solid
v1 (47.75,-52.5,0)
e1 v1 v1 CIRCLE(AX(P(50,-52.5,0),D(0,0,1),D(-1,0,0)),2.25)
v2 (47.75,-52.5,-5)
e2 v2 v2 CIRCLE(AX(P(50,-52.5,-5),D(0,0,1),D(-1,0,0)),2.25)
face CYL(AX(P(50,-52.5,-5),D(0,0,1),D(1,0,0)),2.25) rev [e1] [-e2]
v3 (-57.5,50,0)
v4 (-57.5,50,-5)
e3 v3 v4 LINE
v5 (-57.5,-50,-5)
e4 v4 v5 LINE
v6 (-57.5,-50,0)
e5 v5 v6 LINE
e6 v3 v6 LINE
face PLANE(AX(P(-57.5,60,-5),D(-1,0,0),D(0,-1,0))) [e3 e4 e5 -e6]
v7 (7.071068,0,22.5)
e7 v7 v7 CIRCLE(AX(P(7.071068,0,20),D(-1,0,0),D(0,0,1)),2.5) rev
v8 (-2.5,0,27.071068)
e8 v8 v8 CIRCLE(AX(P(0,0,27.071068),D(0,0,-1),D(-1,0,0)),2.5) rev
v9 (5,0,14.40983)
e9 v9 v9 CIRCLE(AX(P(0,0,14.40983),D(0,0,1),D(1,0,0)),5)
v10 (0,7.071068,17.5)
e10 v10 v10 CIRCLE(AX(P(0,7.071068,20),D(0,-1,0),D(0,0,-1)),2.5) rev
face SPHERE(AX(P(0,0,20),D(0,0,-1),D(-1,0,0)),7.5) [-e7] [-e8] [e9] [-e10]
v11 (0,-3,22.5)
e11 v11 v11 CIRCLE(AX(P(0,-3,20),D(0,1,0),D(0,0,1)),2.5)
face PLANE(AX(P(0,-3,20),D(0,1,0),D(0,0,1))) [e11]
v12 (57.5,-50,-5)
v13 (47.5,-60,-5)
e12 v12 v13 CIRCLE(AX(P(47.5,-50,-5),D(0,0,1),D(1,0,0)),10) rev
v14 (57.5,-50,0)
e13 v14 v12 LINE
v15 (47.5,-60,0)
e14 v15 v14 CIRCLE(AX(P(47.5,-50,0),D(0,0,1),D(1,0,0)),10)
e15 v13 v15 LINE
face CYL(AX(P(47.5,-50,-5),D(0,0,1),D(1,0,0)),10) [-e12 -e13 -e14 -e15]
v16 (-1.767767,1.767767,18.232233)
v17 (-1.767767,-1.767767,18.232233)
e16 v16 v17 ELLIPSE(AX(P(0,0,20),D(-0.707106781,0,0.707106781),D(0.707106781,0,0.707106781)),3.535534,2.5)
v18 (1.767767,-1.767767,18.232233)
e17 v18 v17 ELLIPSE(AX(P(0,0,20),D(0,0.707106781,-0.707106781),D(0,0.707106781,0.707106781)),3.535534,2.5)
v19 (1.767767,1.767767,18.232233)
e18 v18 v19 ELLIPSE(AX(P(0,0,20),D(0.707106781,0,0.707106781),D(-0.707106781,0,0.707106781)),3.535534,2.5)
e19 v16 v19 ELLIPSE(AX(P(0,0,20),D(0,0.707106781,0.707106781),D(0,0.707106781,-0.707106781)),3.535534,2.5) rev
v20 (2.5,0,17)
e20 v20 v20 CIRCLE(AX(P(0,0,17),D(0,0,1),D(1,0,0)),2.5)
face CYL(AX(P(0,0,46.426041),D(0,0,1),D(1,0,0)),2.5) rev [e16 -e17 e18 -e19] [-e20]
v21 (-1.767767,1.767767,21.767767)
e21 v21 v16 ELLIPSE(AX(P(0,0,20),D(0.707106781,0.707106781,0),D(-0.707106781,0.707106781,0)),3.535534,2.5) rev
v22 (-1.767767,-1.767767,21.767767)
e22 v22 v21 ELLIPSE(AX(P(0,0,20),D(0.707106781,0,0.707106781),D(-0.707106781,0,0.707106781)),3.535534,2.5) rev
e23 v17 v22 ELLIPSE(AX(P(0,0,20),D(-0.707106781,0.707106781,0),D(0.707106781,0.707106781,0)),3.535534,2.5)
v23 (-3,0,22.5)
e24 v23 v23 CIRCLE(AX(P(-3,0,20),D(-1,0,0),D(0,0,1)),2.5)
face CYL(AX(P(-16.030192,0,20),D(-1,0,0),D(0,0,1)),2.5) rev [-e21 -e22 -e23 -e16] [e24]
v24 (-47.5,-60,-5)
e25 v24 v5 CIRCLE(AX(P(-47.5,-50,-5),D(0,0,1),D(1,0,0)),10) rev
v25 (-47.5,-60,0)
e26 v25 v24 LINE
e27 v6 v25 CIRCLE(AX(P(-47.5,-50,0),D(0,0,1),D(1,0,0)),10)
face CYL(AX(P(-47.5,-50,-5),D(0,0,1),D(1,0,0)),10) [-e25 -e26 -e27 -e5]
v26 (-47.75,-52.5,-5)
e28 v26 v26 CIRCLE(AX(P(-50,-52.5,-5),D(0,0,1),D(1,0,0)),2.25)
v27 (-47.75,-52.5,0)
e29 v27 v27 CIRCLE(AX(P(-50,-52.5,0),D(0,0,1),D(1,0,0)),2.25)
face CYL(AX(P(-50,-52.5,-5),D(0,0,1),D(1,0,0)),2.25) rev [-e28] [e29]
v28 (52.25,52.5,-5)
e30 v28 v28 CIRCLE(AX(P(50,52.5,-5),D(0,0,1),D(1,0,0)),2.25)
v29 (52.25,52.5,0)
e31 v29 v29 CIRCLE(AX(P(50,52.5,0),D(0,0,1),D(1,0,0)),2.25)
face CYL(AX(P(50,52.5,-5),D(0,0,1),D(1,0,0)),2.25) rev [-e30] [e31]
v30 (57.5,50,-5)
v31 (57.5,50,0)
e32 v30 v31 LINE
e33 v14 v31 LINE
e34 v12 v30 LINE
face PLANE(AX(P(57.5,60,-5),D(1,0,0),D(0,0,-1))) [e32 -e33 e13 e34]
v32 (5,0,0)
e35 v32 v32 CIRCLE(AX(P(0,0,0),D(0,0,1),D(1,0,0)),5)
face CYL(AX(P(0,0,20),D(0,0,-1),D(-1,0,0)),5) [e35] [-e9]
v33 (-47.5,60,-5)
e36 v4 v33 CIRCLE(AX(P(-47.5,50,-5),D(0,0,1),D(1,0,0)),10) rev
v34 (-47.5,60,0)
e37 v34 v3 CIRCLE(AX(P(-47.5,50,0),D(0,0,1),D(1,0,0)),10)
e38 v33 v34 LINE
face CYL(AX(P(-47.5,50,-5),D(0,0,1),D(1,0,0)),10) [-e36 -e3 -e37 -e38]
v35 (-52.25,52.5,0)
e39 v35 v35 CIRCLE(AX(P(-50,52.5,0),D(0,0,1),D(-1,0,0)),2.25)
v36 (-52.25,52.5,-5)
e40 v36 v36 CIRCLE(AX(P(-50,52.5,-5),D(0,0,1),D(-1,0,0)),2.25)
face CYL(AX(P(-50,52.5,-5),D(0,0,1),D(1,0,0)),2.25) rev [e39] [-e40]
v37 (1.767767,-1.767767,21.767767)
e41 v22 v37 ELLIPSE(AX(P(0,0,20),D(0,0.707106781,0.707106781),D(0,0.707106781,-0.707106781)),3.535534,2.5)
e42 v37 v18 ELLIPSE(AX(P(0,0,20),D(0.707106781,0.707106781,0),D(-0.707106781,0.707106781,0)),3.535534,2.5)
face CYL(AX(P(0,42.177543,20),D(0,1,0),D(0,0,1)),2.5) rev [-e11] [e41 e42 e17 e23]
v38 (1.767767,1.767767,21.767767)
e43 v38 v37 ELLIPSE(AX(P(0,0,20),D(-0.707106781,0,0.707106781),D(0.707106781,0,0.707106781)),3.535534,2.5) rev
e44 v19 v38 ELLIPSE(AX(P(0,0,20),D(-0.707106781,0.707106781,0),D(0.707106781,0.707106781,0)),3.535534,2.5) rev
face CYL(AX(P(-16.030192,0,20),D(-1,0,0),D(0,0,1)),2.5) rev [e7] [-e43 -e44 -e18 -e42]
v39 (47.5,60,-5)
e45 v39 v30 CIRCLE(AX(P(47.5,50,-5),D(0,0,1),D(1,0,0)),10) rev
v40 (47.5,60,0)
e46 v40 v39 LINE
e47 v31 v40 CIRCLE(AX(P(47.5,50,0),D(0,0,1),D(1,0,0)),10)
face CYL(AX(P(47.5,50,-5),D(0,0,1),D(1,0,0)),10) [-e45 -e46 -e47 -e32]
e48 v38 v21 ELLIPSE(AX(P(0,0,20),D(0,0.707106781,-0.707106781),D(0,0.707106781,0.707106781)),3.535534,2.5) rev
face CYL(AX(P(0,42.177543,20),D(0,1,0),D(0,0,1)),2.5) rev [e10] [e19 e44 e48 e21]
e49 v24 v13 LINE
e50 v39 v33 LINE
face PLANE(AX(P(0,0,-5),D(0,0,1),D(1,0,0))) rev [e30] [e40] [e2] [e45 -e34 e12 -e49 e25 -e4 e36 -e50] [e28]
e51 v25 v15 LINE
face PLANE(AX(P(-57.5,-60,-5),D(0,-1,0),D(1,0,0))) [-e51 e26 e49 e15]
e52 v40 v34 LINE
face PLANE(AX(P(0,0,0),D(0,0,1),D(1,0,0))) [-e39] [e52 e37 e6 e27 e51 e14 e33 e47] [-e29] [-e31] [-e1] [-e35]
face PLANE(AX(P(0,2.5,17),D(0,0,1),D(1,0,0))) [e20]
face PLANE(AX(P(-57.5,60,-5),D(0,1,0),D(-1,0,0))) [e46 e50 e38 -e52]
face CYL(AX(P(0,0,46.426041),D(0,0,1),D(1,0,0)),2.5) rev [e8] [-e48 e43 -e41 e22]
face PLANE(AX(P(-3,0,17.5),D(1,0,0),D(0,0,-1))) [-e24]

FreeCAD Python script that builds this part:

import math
import FreeCAD as App
import Part
import Sketcher

V = App.Vector
Q = App.Units.Quantity


def edges_at(feature, points):
    """Names of the edges that pass closest to the given points."""
    edges = feature.Shape.Edges
    near = lambda p: min(range(len(edges)), key=lambda i: edges[i].distToShape(Part.Vertex(*p))[0])
    return sorted({f"Edge{near(p) + 1}" for p in points})

doc = App.newDocument("Part")
body = doc.addObject("PartDesign::Body", "Body")

# Sketch on XY plane
sketch1 = doc.addObject("Sketcher::SketchObject", "Sketch")
body.addObject(sketch1)
sketch1.AttachmentSupport = (doc.XY_Plane, [""])
sketch1.MapMode = "FlatFace"
sketch1.addGeometry([
    Part.LineSegment(V(-57.5, 60, 0), V(-57.5, -60, 0)),  # 0
    Part.LineSegment(V(-57.5, -60, 0), V(57.5, -60, 0)),  # 1
    Part.LineSegment(V(57.5, -60, 0), V(57.5, 60, 0)),  # 2
    Part.LineSegment(V(57.5, 60, 0), V(-57.5, 60, 0)),  # 3
    Part.Circle(V(-50, -52.5, 0), V(0, 0, 1), 2.2),  # 4
    Part.Circle(V(50, -52.5, 0), V(0, 0, 1), 2.2),  # 5
    Part.Circle(V(-50, 52.5, 0), V(0, 0, 1), 2.2),  # 6
    Part.Circle(V(50, 52.5, 0), V(0, 0, 1), 2.2),  # 7
], False)
sketch1.addConstraint([
    Sketcher.Constraint("Coincident", 0, 2, 1, 1),
    Sketcher.Constraint("Coincident", 1, 2, 2, 1),
    Sketcher.Constraint("Coincident", 2, 2, 3, 1),
    Sketcher.Constraint("Coincident", 3, 2, 0, 1),
    Sketcher.Constraint("Vertical", 0),
    Sketcher.Constraint("Horizontal", 1),
    Sketcher.Constraint("Vertical", 2),
    Sketcher.Constraint("Horizontal", 3),
    Sketcher.Constraint("Equal", 4, 5),
    Sketcher.Constraint("Equal", 5, 6),
    Sketcher.Constraint("Equal", 6, 7),
    Sketcher.Constraint("Symmetric", 5, 3, 6, 3, -1, 1),
    Sketcher.Constraint("Symmetric", 4, 3, 7, 3, -1, 1),
    Sketcher.Constraint("Symmetric", 0, 2, 2, 2, -1, 1),
    Sketcher.Constraint("Symmetric", 4, 3, 5, 3, -2),
    Sketcher.Constraint("Diameter", 4, Q("4.5 mm")),
    Sketcher.Constraint("DistanceX", 1, 1, 1, 2, Q("115 mm")),
    Sketcher.Constraint("DistanceY", 0, 2, 0, 1, Q("120 mm")),
    Sketcher.Constraint("DistanceX", 4, 3, -1, 1, Q("50 mm")),
    Sketcher.Constraint("DistanceY", 4, 3, 6, 3, Q("105 mm")),
])
pad1 = doc.addObject("PartDesign::Pad", "Pad")
body.addObject(pad1)
pad1.Profile = sketch1
pad1.Length = 5
pad1.Reversed = True

# Sketch on XY plane
sketch2 = doc.addObject("Sketcher::SketchObject", "Sketch001")
body.addObject(sketch2)
sketch2.AttachmentSupport = (doc.XY_Plane, [""])
sketch2.MapMode = "FlatFace"
sketch2.addGeometry(Part.Circle(V(0, 0, 0), V(0, 0, 1), 5), False)
sketch2.addConstraint([
    Sketcher.Constraint("Coincident", 0, 3, -1, 1),
    Sketcher.Constraint("Diameter", 0, Q("10 mm")),
])
pad2 = doc.addObject("PartDesign::Pad", "Pad001")
body.addObject(pad2)
pad2.Profile = sketch2
pad2.Length = 20

# Sketch on XZ plane
sketch3 = doc.addObject("Sketcher::SketchObject", "Sketch002")
body.addObject(sketch3)
sketch3.AttachmentSupport = (doc.XZ_Plane, [""])
sketch3.MapMode = "FlatFace"
sketch3.addGeometry([
    Part.LineSegment(V(0, 12, 0), V(0, 28, 0)),
    Part.ArcOfCircle(Part.Circle(V(0, 20, 0), V(0, 0, 1), 8), math.radians(-90), math.radians(90)),
], False)
sketch3.addConstraint([
    Sketcher.Constraint("Coincident", 0, 1, 1, 1),
    Sketcher.Constraint("Coincident", 1, 2, 0, 2),
    Sketcher.Constraint("Vertical", 0),
    Sketcher.Constraint("PointOnObject", 1, 3, -2),
    Sketcher.Constraint("PointOnObject", 0, 1, -2),
    Sketcher.Constraint("Radius", 1, Q("7.5 mm")),
    Sketcher.Constraint("DistanceY", -1, 1, 1, 3, Q("20 mm")),
])
revolution = doc.addObject("PartDesign::Revolution", "Revolution")
body.addObject(revolution)
revolution.Profile = sketch3
revolution.ReferenceAxis = (sketch3, ["V_Axis"])
revolution.Angle = 360

# Sketch on YZ plane
sketch4 = doc.addObject("Sketcher::SketchObject", "Sketch003")
body.addObject(sketch4)
sketch4.AttachmentSupport = (doc.YZ_Plane, [""])
sketch4.MapMode = "FlatFace"
sketch4.addGeometry([
    Part.LineSegment(V(15, 20, 0), V(-3, 20, 0)),
    Part.LineSegment(V(-3, 20, 0), V(-3, 17.5, 0)),
    Part.LineSegment(V(-3, 17.5, 0), V(15, 17.5, 0)),
    Part.LineSegment(V(15, 17.5, 0), V(15, 20, 0)),
], False)
sketch4.addGeometry(Part.LineSegment(V(15, 20, 0), V(-3, 20, 0)), True)  # axis
sketch4.addConstraint([
    Sketcher.Constraint("Coincident", 0, 2, 1, 1),
    Sketcher.Constraint("Coincident", 1, 2, 2, 1),
    Sketcher.Constraint("Coincident", 2, 2, 3, 1),
    Sketcher.Constraint("Coincident", 3, 2, 0, 1),
    Sketcher.Constraint("Horizontal", 0),
    Sketcher.Constraint("Vertical", 1),
    Sketcher.Constraint("Horizontal", 2),
    Sketcher.Constraint("Vertical", 3),
    Sketcher.Constraint("Horizontal", 4),
    Sketcher.Constraint("Coincident", 4, 1, 3, 2),
    Sketcher.Constraint("Vertical", 1, 2, 4, 2),
    Sketcher.Constraint("DistanceX", 0, 2, 0, 1, Q("18 mm")),
    Sketcher.Constraint("DistanceY", 1, 2, 1, 1, Q("2.5 mm")),
    Sketcher.Constraint("DistanceX", 0, 2, -1, 1, Q("3 mm")),
    Sketcher.Constraint("DistanceY", -1, 1, 0, 2, Q("20 mm")),
])
groove = doc.addObject("PartDesign::Groove", "Groove")
body.addObject(groove)
groove.Profile = sketch4
groove.ReferenceAxis = (sketch4, ["Axis0"])
groove.Angle = 360

# Sketch on YZ plane
sketch5 = doc.addObject("Sketcher::SketchObject", "Sketch004")
body.addObject(sketch5)
sketch5.AttachmentSupport = (doc.YZ_Plane, [""])
sketch5.MapMode = "FlatFace"
sketch5.addGeometry([
    Part.LineSegment(V(2.5, 35, 0), V(0, 35, 0)),
    Part.LineSegment(V(0, 35, 0), V(0, 17, 0)),
    Part.LineSegment(V(0, 17, 0), V(2.5, 17, 0)),
    Part.LineSegment(V(2.5, 17, 0), V(2.5, 35, 0)),
], False)
sketch5.addConstraint([
    Sketcher.Constraint("Coincident", 0, 2, 1, 1),
    Sketcher.Constraint("Coincident", 1, 2, 2, 1),
    Sketcher.Constraint("Coincident", 2, 2, 3, 1),
    Sketcher.Constraint("Coincident", 3, 2, 0, 1),
    Sketcher.Constraint("Horizontal", 0),
    Sketcher.Constraint("Vertical", 1),
    Sketcher.Constraint("Horizontal", 2),
    Sketcher.Constraint("Vertical", 3),
    Sketcher.Constraint("PointOnObject", 0, 2, -2),
    Sketcher.Constraint("DistanceY", 1, 2, 1, 1, Q("18 mm")),
    Sketcher.Constraint("DistanceX", 0, 2, 0, 1, Q("2.5 mm")),
    Sketcher.Constraint("DistanceY", -1, 1, 0, 2, Q("35 mm")),
])
groove2 = doc.addObject("PartDesign::Groove", "Groove001")
body.addObject(groove2)
groove2.Profile = sketch5
groove2.ReferenceAxis = (sketch5, ["V_Axis"])
groove2.Angle = 360

# Sketch on XZ plane
sketch6 = doc.addObject("Sketcher::SketchObject", "Sketch005")
body.addObject(sketch6)
sketch6.AttachmentSupport = (doc.XZ_Plane, [""])
sketch6.MapMode = "FlatFace"
sketch6.addGeometry([
    Part.LineSegment(V(-3, 17.5, 0), V(-3, 20, 0)),
    Part.LineSegment(V(-3, 20, 0), V(15, 20, 0)),
    Part.LineSegment(V(15, 20, 0), V(15, 17.5, 0)),
    Part.LineSegment(V(15, 17.5, 0), V(-3, 17.5, 0)),
], False)
sketch6.addGeometry(Part.LineSegment(V(-3, 20, 0), V(15, 20, 0)), True)  # axis
sketch6.addConstraint([
    Sketcher.Constraint("Coincident", 0, 2, 1, 1),
    Sketcher.Constraint("Coincident", 1, 2, 2, 1),
    Sketcher.Constraint("Coincident", 2, 2, 3, 1),
    Sketcher.Constraint("Coincident", 3, 2, 0, 1),
    Sketcher.Constraint("Vertical", 0),
    Sketcher.Constraint("Horizontal", 1),
    Sketcher.Constraint("Vertical", 2),
    Sketcher.Constraint("Horizontal", 3),
    Sketcher.Constraint("Horizontal", 4),
    Sketcher.Constraint("Coincident", 4, 1, 0, 2),
    Sketcher.Constraint("Vertical", 2, 2, 4, 2),
    Sketcher.Constraint("DistanceX", 1, 1, 1, 2, Q("18 mm")),
    Sketcher.Constraint("DistanceY", 0, 1, 0, 2, Q("2.5 mm")),
    Sketcher.Constraint("DistanceX", 0, 2, -1, 1, Q("3 mm")),
    Sketcher.Constraint("DistanceY", -1, 1, 0, 2, Q("20 mm")),
])
groove3 = doc.addObject("PartDesign::Groove", "Groove002")
body.addObject(groove3)
groove3.Profile = sketch6
groove3.ReferenceAxis = (sketch6, ["Axis0"])
groove3.Angle = 360
doc.recompute()

fillet = doc.addObject("PartDesign::Fillet", "Fillet")
body.addObject(fillet)
fillet.Base = (groove3, edges_at(groove3, [
    (-57.5, 60, -2.5),
    (57.5, 60, -2.5),
    (57.5, -60, -2.5),
    (-57.5, -60, -2.5),
]))
fillet.Radius = 10

doc.recompute()
